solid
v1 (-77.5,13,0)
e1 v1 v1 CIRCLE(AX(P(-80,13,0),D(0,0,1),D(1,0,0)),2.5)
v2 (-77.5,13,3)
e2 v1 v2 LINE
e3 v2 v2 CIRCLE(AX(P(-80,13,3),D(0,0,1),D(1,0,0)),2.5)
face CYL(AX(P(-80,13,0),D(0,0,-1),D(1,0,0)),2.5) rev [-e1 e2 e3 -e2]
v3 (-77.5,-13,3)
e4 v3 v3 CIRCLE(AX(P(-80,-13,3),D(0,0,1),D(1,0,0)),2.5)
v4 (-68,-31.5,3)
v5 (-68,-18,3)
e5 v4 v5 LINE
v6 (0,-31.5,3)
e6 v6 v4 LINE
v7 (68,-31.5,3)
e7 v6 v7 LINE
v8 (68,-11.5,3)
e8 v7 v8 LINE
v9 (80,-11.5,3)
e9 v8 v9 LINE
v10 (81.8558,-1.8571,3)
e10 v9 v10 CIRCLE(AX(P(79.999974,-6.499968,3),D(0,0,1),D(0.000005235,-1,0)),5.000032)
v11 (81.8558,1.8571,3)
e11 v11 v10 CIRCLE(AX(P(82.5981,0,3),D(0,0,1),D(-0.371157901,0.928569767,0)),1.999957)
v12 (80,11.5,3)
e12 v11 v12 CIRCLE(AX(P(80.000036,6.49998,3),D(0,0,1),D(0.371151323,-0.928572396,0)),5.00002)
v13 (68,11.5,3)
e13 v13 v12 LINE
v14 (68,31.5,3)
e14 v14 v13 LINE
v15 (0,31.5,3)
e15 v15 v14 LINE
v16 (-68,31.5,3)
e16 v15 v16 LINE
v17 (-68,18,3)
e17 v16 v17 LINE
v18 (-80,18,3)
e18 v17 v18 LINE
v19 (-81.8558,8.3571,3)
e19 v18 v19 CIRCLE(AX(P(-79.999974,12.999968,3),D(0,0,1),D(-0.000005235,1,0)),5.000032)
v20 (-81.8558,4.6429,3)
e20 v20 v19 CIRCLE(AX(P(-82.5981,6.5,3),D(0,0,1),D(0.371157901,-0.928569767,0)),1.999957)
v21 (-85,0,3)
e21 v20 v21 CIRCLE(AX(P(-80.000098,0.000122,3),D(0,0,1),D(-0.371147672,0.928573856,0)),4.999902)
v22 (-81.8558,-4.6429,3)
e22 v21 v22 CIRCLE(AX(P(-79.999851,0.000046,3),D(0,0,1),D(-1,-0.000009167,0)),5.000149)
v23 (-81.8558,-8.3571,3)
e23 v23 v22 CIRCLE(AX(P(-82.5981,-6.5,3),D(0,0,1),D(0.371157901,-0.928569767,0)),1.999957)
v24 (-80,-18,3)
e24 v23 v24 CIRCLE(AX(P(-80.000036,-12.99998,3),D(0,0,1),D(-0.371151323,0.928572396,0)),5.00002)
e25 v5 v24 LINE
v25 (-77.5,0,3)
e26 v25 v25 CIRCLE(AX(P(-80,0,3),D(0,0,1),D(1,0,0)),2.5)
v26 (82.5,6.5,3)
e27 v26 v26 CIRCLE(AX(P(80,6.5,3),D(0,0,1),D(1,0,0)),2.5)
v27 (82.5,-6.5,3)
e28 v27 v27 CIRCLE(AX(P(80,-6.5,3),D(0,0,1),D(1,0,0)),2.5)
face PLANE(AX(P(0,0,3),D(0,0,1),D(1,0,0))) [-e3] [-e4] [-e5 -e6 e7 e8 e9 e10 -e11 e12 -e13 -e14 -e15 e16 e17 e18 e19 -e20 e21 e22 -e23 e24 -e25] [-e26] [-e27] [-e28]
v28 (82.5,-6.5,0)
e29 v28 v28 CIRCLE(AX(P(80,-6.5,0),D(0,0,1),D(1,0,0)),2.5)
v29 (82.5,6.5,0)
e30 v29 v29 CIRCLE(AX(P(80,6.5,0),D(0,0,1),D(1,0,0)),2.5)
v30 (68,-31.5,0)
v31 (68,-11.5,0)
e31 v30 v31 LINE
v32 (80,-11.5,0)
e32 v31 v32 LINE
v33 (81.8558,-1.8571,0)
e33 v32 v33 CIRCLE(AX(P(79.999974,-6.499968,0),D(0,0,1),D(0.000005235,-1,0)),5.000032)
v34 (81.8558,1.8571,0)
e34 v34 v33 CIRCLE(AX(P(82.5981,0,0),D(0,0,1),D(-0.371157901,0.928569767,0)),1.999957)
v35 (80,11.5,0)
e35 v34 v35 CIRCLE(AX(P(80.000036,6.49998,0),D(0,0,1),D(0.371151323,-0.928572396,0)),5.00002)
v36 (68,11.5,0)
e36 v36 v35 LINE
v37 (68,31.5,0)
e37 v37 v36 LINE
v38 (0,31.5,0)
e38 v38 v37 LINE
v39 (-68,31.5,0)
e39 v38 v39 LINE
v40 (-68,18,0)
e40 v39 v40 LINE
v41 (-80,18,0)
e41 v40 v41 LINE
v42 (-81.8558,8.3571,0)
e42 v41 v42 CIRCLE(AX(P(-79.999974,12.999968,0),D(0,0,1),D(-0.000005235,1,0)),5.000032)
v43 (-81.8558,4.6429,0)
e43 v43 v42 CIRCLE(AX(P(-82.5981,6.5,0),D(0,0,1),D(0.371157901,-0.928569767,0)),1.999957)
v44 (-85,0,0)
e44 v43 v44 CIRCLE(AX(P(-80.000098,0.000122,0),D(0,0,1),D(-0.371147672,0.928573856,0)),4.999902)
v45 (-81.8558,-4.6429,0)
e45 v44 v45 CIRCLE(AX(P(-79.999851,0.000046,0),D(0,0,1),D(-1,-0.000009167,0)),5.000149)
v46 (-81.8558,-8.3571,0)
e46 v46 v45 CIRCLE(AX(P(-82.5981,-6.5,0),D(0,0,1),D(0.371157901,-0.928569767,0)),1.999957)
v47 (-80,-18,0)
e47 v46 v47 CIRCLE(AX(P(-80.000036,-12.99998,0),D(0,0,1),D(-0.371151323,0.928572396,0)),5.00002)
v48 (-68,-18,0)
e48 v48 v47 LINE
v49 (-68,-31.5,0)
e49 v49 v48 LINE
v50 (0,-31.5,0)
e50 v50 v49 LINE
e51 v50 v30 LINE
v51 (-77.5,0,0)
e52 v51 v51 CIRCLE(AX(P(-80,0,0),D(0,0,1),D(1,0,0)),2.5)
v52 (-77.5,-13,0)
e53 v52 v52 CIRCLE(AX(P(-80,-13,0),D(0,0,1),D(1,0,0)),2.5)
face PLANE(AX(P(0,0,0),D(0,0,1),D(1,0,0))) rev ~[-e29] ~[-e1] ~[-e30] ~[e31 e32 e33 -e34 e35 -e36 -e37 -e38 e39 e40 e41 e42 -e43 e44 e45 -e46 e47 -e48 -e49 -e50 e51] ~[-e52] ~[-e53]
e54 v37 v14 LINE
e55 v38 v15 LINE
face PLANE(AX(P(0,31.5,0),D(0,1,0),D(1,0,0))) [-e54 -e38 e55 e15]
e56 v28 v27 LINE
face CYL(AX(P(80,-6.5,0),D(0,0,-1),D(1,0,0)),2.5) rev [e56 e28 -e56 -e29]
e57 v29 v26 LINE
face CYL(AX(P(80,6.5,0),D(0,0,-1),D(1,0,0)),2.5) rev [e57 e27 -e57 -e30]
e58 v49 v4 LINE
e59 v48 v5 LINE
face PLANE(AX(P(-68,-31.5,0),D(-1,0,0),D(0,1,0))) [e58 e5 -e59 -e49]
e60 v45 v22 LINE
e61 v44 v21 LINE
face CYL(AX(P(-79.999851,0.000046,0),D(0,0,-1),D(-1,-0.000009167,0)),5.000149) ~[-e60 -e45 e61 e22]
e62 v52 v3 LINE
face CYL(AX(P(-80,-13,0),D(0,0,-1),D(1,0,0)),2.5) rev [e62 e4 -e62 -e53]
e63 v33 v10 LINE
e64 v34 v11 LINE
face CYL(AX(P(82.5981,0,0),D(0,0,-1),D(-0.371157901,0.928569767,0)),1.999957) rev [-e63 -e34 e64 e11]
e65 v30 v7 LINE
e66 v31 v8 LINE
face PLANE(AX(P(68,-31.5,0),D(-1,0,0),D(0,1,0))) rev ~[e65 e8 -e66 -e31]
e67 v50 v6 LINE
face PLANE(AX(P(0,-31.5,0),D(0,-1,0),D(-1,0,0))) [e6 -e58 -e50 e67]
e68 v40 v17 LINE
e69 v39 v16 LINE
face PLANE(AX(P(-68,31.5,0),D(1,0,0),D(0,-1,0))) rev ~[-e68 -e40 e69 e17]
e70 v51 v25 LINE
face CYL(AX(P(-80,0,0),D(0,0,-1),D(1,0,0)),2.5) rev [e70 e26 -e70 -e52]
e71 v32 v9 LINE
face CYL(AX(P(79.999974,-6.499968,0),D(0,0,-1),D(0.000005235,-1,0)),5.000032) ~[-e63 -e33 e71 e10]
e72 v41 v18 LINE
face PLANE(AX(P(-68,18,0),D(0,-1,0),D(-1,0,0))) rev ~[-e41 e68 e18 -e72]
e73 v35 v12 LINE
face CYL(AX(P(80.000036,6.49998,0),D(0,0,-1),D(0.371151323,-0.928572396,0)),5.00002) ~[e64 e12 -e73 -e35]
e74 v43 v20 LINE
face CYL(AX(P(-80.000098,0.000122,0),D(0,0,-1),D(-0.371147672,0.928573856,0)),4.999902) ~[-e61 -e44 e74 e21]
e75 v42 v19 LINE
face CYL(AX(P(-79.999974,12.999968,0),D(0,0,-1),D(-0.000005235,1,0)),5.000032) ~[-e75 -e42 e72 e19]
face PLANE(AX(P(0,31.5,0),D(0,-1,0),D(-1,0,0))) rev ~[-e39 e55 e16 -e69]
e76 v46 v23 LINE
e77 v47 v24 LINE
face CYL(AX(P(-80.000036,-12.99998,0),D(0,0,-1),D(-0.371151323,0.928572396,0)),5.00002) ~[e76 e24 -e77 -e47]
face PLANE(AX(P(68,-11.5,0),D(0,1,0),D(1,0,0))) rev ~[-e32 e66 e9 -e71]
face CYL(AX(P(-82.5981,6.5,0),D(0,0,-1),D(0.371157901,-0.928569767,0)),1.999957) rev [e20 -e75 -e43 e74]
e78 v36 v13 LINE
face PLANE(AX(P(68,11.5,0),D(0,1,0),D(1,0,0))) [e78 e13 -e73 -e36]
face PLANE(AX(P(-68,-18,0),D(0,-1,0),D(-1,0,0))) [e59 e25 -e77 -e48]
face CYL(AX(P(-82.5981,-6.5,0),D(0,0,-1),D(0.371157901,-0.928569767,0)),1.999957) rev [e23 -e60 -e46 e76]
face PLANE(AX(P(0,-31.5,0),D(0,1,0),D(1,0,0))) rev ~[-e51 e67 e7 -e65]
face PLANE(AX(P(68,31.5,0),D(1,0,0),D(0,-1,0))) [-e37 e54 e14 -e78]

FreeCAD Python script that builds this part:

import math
import FreeCAD as App
import Part
import Sketcher
from FreeCAD import Vector

doc = App.newDocument("Part")
body = doc.addObject("PartDesign::Body", "Body")

# Sketch on XY plane
sketch1 = body.newObject("Sketcher::SketchObject", "Sketch")
sketch1.AttachmentSupport = (doc.getObject("XY_Plane"), [""])
sketch1.MapMode = "FlatFace"
sketch1.addGeometry([
    Part.LineSegment(Vector(-68, -31.5, 0), Vector(68, -31.5, 0)),  # 0
    Part.LineSegment(Vector(68, -31.5, 0), Vector(68, -11.5, 0)),  # 1
    Part.LineSegment(Vector(68, -11.5, 0), Vector(80, -11.5, 0)),  # 2
    Part.ArcOfCircle(Part.Circle(Vector(80, -6.5, 0), Vector(0, 0, 1), 5), math.radians(-90), math.radians(68)),  # 3
    Part.ArcOfCircle(Part.Circle(Vector(82.6, 0, 0), Vector(0, 0, 1), 2), math.radians(112), math.radians(248)),  # 4
    Part.ArcOfCircle(Part.Circle(Vector(80, 6.5, 0), Vector(0, 0, 1), 5), math.radians(-68), math.radians(90)),  # 5
    Part.LineSegment(Vector(80, 11.5, 0), Vector(68, 11.5, 0)),  # 6
    Part.LineSegment(Vector(68, 11.5, 0), Vector(68, 31.5, 0)),  # 7
    Part.LineSegment(Vector(68, 31.5, 0), Vector(-68, 31.5, 0)),  # 8
    Part.LineSegment(Vector(-68, 31.5, 0), Vector(-68, 18, 0)),  # 9
    Part.LineSegment(Vector(-68, 18, 0), Vector(-80, 18, 0)),  # 10
    Part.ArcOfCircle(Part.Circle(Vector(-80, 13, 0), Vector(0, 0, 1), 5), math.radians(90), math.radians(248)),  # 11
    Part.ArcOfCircle(Part.Circle(Vector(-82.6, 6.5, 0), Vector(0, 0, 1), 2), math.radians(-68), math.radians(68)),  # 12
    Part.ArcOfCircle(Part.Circle(Vector(-80, 0, 0), Vector(0, 0, 1), 5), math.radians(112), math.radians(180)),  # 13
    Part.ArcOfCircle(Part.Circle(Vector(-80, 0, 0), Vector(0, 0, 1), 5), math.radians(180), math.radians(248)),  # 14
    Part.ArcOfCircle(Part.Circle(Vector(-82.6, -6.5, 0), Vector(0, 0, 1), 2), math.radians(-68), math.radians(68)),  # 15
    Part.ArcOfCircle(Part.Circle(Vector(-80, -13, 0), Vector(0, 0, 1), 5), math.radians(112), math.radians(270)),  # 16
    Part.LineSegment(Vector(-80, -18, 0), Vector(-68, -18, 0)),  # 17
    Part.LineSegment(Vector(-68, -18, 0), Vector(-68, -31.5, 0)),  # 18
    Part.Circle(Vector(-80, -13, 0), Vector(0, 0, 1), 2.5),  # 19
    Part.Circle(Vector(80, -6.5, 0), Vector(0, 0, 1), 2.5),  # 20
    Part.Circle(Vector(-80, 0, 0), Vector(0, 0, 1), 2.5),  # 21
    Part.Circle(Vector(-80, 13, 0), Vector(0, 0, 1), 2.5),  # 22
    Part.Circle(Vector(80, 6.5, 0), Vector(0, 0, 1), 2.5),  # 23
], False)
sketch1.addConstraint([
    Sketcher.Constraint("Coincident", 0, 2, 1, 1),
    Sketcher.Constraint("Coincident", 1, 2, 2, 1),
    Sketcher.Constraint("Tangent", 2, 2, 3, 1),
    Sketcher.Constraint("Tangent", 3, 2, 4, 2),
    Sketcher.Constraint("Tangent", 4, 1, 5, 1),
    Sketcher.Constraint("Tangent", 5, 2, 6, 1),
    Sketcher.Constraint("Coincident", 6, 2, 7, 1),
    Sketcher.Constraint("Coincident", 7, 2, 8, 1),
    Sketcher.Constraint("Coincident", 8, 2, 9, 1),
    Sketcher.Constraint("Coincident", 9, 2, 10, 1),
    Sketcher.Constraint("Tangent", 10, 2, 11, 1),
    Sketcher.Constraint("Tangent", 11, 2, 12, 2),
    Sketcher.Constraint("Tangent", 12, 1, 13, 1),
    Sketcher.Constraint("Tangent", 13, 2, 14, 1),
    Sketcher.Constraint("Tangent", 14, 2, 15, 2),
    Sketcher.Constraint("Tangent", 15, 1, 16, 1),
    Sketcher.Constraint("Tangent", 16, 2, 17, 1),
    Sketcher.Constraint("Coincident", 17, 2, 18, 1),
    Sketcher.Constraint("Coincident", 18, 2, 0, 1),
    Sketcher.Constraint("Horizontal", 0),
    Sketcher.Constraint("Vertical", 1),
    Sketcher.Constraint("Horizontal", 2),
    Sketcher.Constraint("Horizontal", 6),
    Sketcher.Constraint("Vertical", 7),
    Sketcher.Constraint("Horizontal", 8),
    Sketcher.Constraint("Vertical", 9),
    Sketcher.Constraint("Horizontal", 10),
    Sketcher.Constraint("Horizontal", 17),
    Sketcher.Constraint("Vertical", 18),
    Sketcher.Constraint("Coincident", 19, 3, 16, 3),
    Sketcher.Constraint("Coincident", 20, 3, 3, 3),
    Sketcher.Constraint("Coincident", 21, 3, 13, 3),
    Sketcher.Constraint("Coincident", 22, 3, 11, 3),
    Sketcher.Constraint("Coincident", 23, 3, 5, 3),
    Sketcher.Constraint("Equal", 3, 5),
    Sketcher.Constraint("Equal", 5, 11),
    Sketcher.Constraint("Equal", 4, 12),
    Sketcher.Constraint("Equal", 11, 13),
    Sketcher.Constraint("Equal", 13, 14),
    Sketcher.Constraint("Equal", 12, 15),
    Sketcher.Constraint("Equal", 14, 16),
    Sketcher.Constraint("Equal", 19, 20),
    Sketcher.Constraint("Equal", 20, 21),
    Sketcher.Constraint("Equal", 21, 22),
    Sketcher.Constraint("Equal", 22, 23),
    Sketcher.Constraint("Symmetric", 0, 2, 8, 2, -1, 1),
    Sketcher.Constraint("Symmetric", 3, 3, 5, 3, -1),
    Sketcher.Constraint("Symmetric", 12, 3, 15, 3, -1),
    Sketcher.Constraint("Symmetric", 9, 2, 17, 2, -1),
    Sketcher.Constraint("PointOnObject", 13, 2, -1),
    Sketcher.Constraint("Horizontal", 5, 3, 12, 3),
    Sketcher.Constraint("Vertical", 11, 3, 13, 3),
    Sketcher.Constraint("Vertical", 1, 2, 6, 2),
    Sketcher.Constraint("Equal", 6, 10),
    Sketcher.Constraint("Diameter", 19, 5.0),
    Sketcher.Constraint("Radius", 3, 5.0),
    Sketcher.Constraint("Radius", 4, 2.0),
    Sketcher.Constraint("DistanceY", -1, 1, 11, 3, 13.0),
    Sketcher.Constraint("DistanceY", 0, 2, -1, 1, 31.5),
    Sketcher.Constraint("DistanceX", 0, 1, 0, 2, 136.0),
    Sketcher.Constraint("DistanceX", 2, 1, 2, 2, 12.0),
])
pad1 = body.newObject("PartDesign::Pad", "Pad")
pad1.Profile = sketch1
pad1.Length = 3

doc.recompute()
